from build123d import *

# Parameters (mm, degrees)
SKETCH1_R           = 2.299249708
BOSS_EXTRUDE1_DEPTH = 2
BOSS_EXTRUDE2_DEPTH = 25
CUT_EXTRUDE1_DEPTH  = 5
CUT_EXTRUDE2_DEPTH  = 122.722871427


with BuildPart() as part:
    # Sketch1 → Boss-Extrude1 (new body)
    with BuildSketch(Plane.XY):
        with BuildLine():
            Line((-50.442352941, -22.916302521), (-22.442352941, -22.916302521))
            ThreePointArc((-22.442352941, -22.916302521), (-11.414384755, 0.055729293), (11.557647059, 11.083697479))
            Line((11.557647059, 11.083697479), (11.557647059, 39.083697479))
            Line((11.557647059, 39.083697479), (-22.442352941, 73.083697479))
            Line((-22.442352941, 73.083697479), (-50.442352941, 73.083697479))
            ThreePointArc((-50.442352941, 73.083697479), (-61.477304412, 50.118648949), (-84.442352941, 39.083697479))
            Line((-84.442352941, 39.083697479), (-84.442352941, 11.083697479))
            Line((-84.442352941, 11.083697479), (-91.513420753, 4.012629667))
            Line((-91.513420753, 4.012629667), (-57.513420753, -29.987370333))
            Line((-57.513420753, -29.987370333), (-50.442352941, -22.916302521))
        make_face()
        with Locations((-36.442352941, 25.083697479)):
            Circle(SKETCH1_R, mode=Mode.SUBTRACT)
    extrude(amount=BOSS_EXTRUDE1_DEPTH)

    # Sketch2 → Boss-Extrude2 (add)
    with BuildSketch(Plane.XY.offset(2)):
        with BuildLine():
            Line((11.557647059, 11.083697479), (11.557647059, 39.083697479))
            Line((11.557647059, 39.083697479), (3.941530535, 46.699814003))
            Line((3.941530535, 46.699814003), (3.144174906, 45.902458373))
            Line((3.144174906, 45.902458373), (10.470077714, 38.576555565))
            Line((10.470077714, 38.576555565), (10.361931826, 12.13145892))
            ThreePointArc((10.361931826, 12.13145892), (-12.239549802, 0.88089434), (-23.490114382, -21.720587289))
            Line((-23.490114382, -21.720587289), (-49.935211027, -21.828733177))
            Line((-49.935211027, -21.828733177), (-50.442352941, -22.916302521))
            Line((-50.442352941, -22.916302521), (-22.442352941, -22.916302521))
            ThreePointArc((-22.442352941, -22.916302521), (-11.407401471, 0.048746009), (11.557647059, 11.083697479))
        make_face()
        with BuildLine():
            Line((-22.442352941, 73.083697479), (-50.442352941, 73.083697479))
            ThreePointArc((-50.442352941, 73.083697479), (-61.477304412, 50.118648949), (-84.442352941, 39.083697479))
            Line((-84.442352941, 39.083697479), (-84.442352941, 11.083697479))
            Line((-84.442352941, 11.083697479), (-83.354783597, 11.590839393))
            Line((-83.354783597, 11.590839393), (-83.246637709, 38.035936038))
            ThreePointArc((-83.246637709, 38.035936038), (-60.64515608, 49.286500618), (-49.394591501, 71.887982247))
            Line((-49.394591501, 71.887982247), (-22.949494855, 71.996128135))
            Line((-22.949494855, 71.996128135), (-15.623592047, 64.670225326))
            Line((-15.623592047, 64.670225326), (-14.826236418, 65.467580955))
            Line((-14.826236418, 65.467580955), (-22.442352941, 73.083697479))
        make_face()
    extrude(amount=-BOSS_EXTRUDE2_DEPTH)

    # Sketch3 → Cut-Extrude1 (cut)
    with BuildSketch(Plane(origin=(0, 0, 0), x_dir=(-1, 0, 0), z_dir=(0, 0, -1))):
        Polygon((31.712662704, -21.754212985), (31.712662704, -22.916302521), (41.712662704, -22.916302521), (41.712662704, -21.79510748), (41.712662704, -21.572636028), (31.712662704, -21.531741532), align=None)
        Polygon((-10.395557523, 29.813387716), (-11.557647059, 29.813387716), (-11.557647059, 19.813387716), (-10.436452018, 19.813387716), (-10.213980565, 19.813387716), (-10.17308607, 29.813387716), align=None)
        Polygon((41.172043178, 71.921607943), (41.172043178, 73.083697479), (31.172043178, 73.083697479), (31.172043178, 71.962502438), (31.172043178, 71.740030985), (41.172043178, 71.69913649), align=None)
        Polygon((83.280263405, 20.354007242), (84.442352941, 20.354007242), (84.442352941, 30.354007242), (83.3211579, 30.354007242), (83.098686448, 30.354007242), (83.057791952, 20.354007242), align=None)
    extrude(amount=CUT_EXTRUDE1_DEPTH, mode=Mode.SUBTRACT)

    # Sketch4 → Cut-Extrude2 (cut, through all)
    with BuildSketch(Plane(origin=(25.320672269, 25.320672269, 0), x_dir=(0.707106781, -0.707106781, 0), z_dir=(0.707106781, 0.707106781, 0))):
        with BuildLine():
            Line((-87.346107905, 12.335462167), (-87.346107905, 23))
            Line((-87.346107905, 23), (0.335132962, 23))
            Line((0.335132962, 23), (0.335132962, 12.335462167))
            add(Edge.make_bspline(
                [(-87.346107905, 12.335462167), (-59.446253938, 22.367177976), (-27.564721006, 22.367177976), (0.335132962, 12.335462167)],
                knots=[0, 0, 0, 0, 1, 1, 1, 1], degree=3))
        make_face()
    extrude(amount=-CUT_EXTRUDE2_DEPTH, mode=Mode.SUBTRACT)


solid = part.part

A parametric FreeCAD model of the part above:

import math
import FreeCAD as App
import Part
import Sketcher
Q = App.Units.Quantity


def add_polygon(sketch, points):
    """Adds a closed chain of lines whose ends are joined by coincident constraints."""
    first, n = sketch.GeometryCount, len(points)
    for a, b in zip(points, points[1:] + points[:1]):
        sketch.addGeometry(Part.LineSegment(App.Vector(*a, 0), App.Vector(*b, 0)), False)
    for i in range(n):
        sketch.addConstraint(Sketcher.Constraint("Coincident", first + i, 2, first + (i + 1) % n, 1))

doc = App.newDocument("Part")
body = doc.addObject("PartDesign::Body", "Body")

# Sketch on XY plane
sketch1 = body.newObject("Sketcher::SketchObject", "Sketch")
sketch1.AttachmentSupport = (doc.getObject("XY_Plane"), [""])
sketch1.MapMode = "FlatFace"
sketch1.addGeometry([
    Part.LineSegment(App.Vector(-50.442353, -22.916303, 0), App.Vector(-22.442353, -22.916303, 0)),  # 0
    Part.ArcOfCircle(Part.Circle(App.Vector(15.767751, -27.126407, 0), App.Vector(0, 0, 1), 38.441346), math.radians(96.287659), math.radians(173.712341)),  # 1
    Part.LineSegment(App.Vector(11.557647, 11.083697, 0), App.Vector(11.557647, 39.083697, 0)),  # 2
    Part.LineSegment(App.Vector(11.557647, 39.083697, 0), App.Vector(-22.442353, 73.083697, 0)),  # 3
    Part.LineSegment(App.Vector(-22.442353, 73.083697, 0), App.Vector(-50.442353, 73.083697, 0)),  # 4
    Part.ArcOfCircle(Part.Circle(App.Vector(-88.684275, 77.32562, 0), App.Vector(0, 0, 1), 38.476467), math.radians(-83.670435), math.radians(-6.329565)),  # 5
    Part.LineSegment(App.Vector(-84.442353, 39.083697, 0), App.Vector(-84.442353, 11.083697, 0)),  # 6
    Part.LineSegment(App.Vector(-84.442353, 11.083697, 0), App.Vector(-91.513421, 4.01263, 0)),  # 7
    Part.LineSegment(App.Vector(-91.513421, 4.01263, 0), App.Vector(-57.513421, -29.98737, 0)),  # 8
    Part.LineSegment(App.Vector(-57.513421, -29.98737, 0), App.Vector(-50.442353, -22.916303, 0)),  # 9
    Part.Circle(App.Vector(-36.442353, 25.083697, 0), App.Vector(0, 0, 1), 2.29925),  # 10
], False)
sketch1.addConstraint([
    Sketcher.Constraint("Coincident", 0, 2, 1, 2),
    Sketcher.Constraint("Coincident", 1, 1, 2, 1),
    Sketcher.Constraint("Coincident", 2, 2, 3, 1),
    Sketcher.Constraint("Coincident", 3, 2, 4, 1),
    Sketcher.Constraint("Coincident", 4, 2, 5, 2),
    Sketcher.Constraint("Coincident", 5, 1, 6, 1),
    Sketcher.Constraint("Coincident", 6, 2, 7, 1),
    Sketcher.Constraint("Coincident", 7, 2, 8, 1),
    Sketcher.Constraint("Coincident", 8, 2, 9, 1),
    Sketcher.Constraint("Coincident", 9, 2, 0, 1),
    Sketcher.Constraint("Horizontal", 0),
    Sketcher.Constraint("Vertical", 2),
    Sketcher.Constraint("Horizontal", 4),
    Sketcher.Constraint("Vertical", 6),
    Sketcher.Constraint("Perpendicular", 3, 7),
    Sketcher.Constraint("Perpendicular", 7, 8),
    Sketcher.Constraint("Perpendicular", 8, 9),
    Sketcher.Constraint("Horizontal", 2, 2, 5, 1),
    Sketcher.Constraint("Horizontal", 1, 1, 6, 2),
    Sketcher.Constraint("Vertical", 0, 2, 3, 2),
    Sketcher.Constraint("Vertical", 4, 2, 9, 2),
    Sketcher.Constraint("Equal", 4, 2),
    Sketcher.Constraint("Equal", 3, 8),
    Sketcher.Constraint("Equal", 7, 9),
    Sketcher.Constraint("DistanceX", 0, 1, 0, 2, Q("28 mm")),
    Sketcher.Constraint("Angle", 3, Q("135 deg")),
    Sketcher.Constraint("Distance", 7, Q("10 mm")),
    Sketcher.Constraint("DistanceX", 10, 3, 0, 2, Q("14 mm")),
    Sketcher.Constraint("DistanceY", 0, 2, 10, 3, Q("48 mm")),
    Sketcher.Constraint("DistanceX", 0, 2, 1, 1, Q("34 mm")),
    Sketcher.Constraint("Diameter", 10, Q("4.598499 mm")),
    Sketcher.Constraint("Radius", 1, Q("38.441346 mm")),
    Sketcher.Constraint("Radius", 5, Q("38.476467 mm")),
    Sketcher.Constraint("DistanceX", -1, 1, 1, 3, Q("15.767751 mm")),
    Sketcher.Constraint("DistanceY", -1, 1, 5, 3, Q("77.32562 mm")),
])
pad1 = body.newObject("PartDesign::Pad", "Pad")
pad1.Profile = sketch1
pad1.Length = 2

# Sketch on XY plane
sketch2 = body.newObject("Sketcher::SketchObject", "Sketch001")
sketch2.AttachmentSupport = (doc.getObject("XY_Plane"), [""])
sketch2.MapMode = "FlatFace"
sketch2.AttachmentOffset = App.Placement(App.Vector(0, 0, 2), App.Rotation())
sketch2.addGeometry([
    Part.LineSegment(App.Vector(11.557647, 11.083697, 0), App.Vector(11.557647, 39.083697, 0)),  # 0
    Part.LineSegment(App.Vector(11.557647, 39.083697, 0), App.Vector(3.941531, 46.699814, 0)),  # 1
    Part.LineSegment(App.Vector(3.941531, 46.699814, 0), App.Vector(3.144175, 45.902458, 0)),  # 2
    Part.LineSegment(App.Vector(3.144175, 45.902458, 0), App.Vector(10.470078, 38.576556, 0)),  # 3
    Part.LineSegment(App.Vector(10.470078, 38.576556, 0), App.Vector(10.361932, 12.131459, 0)),  # 4
    Part.ArcOfCircle(Part.Circle(App.Vector(15.837573, -27.196228, 0), App.Vector(0, 0, 1), 39.707047), math.radians(97.926403), math.radians(172.073597)),  # 5
    Part.LineSegment(App.Vector(-23.490114, -21.720587, 0), App.Vector(-49.935211, -21.828733, 0)),  # 6
    Part.LineSegment(App.Vector(-49.935211, -21.828733, 0), App.Vector(-50.442353, -22.916303, 0)),  # 7
    Part.LineSegment(App.Vector(-50.442353, -22.916303, 0), App.Vector(-22.442353, -22.916303, 0)),  # 8
    Part.ArcOfCircle(Part.Circle(App.Vector(15.799569, -27.158225, 0), App.Vector(0, 0, 1), 38.476467), math.radians(96.329565), math.radians(173.670435)),  # 9
    Part.LineSegment(App.Vector(-22.442353, 73.083697, 0), App.Vector(-50.442353, 73.083697, 0)),  # 10
    Part.ArcOfCircle(Part.Circle(App.Vector(-88.684275, 77.32562, 0), App.Vector(0, 0, 1), 38.476467), math.radians(-83.670435), math.radians(-6.329565)),  # 11
    Part.LineSegment(App.Vector(-84.442353, 39.083697, 0), App.Vector(-84.442353, 11.083697, 0)),  # 12
    Part.LineSegment(App.Vector(-84.442353, 11.083697, 0), App.Vector(-83.354784, 11.590839, 0)),  # 13
    Part.LineSegment(App.Vector(-83.354784, 11.590839, 0), App.Vector(-83.246638, 38.035936, 0)),  # 14
    Part.ArcOfCircle(Part.Circle(App.Vector(-88.722279, 77.363623, 0), App.Vector(0, 0, 1), 39.707047), math.radians(-82.073597), math.radians(-7.926403)),  # 15
    Part.LineSegment(App.Vector(-49.394592, 71.887982, 0), App.Vector(-22.949495, 71.996128, 0)),  # 16
    Part.LineSegment(App.Vector(-22.949495, 71.996128, 0), App.Vector(-15.623592, 64.670225, 0)),  # 17
    Part.LineSegment(App.Vector(-15.623592, 64.670225, 0), App.Vector(-14.826236, 65.467581, 0)),  # 18
    Part.LineSegment(App.Vector(-14.826236, 65.467581, 0), App.Vector(-22.442353, 73.083697, 0)),  # 19
], False)
sketch2.addConstraint([
    Sketcher.Constraint("Coincident", 0, 2, 1, 1),
    Sketcher.Constraint("Coincident", 1, 2, 2, 1),
    Sketcher.Constraint("Coincident", 2, 2, 3, 1),
    Sketcher.Constraint("Coincident", 3, 2, 4, 1),
    Sketcher.Constraint("Coincident", 4, 2, 5, 1),
    Sketcher.Constraint("Coincident", 5, 2, 6, 1),
    Sketcher.Constraint("Coincident", 6, 2, 7, 1),
    Sketcher.Constraint("Coincident", 7, 2, 8, 1),
    Sketcher.Constraint("Coincident", 8, 2, 9, 2),
    Sketcher.Constraint("Coincident", 9, 1, 0, 1),
    Sketcher.Constraint("Coincident", 10, 2, 11, 2),
    Sketcher.Constraint("Coincident", 11, 1, 12, 1),
    Sketcher.Constraint("Coincident", 12, 2, 13, 1),
    Sketcher.Constraint("Coincident", 13, 2, 14, 1),
    Sketcher.Constraint("Coincident", 14, 2, 15, 1),
    Sketcher.Constraint("Coincident", 15, 2, 16, 1),
    Sketcher.Constraint("Coincident", 16, 2, 17, 1),
    Sketcher.Constraint("Coincident", 17, 2, 18, 1),
    Sketcher.Constraint("Coincident", 18, 2, 19, 1),
    Sketcher.Constraint("Coincident", 19, 2, 10, 1),
    Sketcher.Constraint("Vertical", 0),
    Sketcher.Constraint("Horizontal", 8),
    Sketcher.Constraint("Horizontal", 10),
    Sketcher.Constraint("Vertical", 12),
    Sketcher.Constraint("Equal", 9, 11),
    Sketcher.Constraint("Equal", 5, 15),
    Sketcher.Constraint("Perpendicular", 1, 2),
    Sketcher.Constraint("Perpendicular", 2, 3),
    Sketcher.Constraint("Parallel", 4, 14),
    Sketcher.Constraint("Parallel", 6, 16),
    Sketcher.Constraint("Parallel", 3, 17),
    Sketcher.Constraint("Perpendicular", 17, 18),
    Sketcher.Constraint("Perpendicular", 18, 19),
    Sketcher.Constraint("Horizontal", 0, 2, 11, 1),
    Sketcher.Constraint("Horizontal", 9, 1, 12, 2),
    Sketcher.Constraint("Vertical", 7, 2, 10, 2),
    Sketcher.Constraint("Vertical", 8, 2, 19, 2),
    Sketcher.Constraint("Equal", 10, 0),
    Sketcher.Constraint("Equal", 4, 6),
    Sketcher.Constraint("Equal", 7, 13),
    Sketcher.Constraint("Equal", 6, 14),
    Sketcher.Constraint("Equal", 14, 16),
    Sketcher.Constraint("Equal", 3, 17),
    Sketcher.Constraint("Equal", 2, 18),
    Sketcher.Constraint("Equal", 1, 19),
    Sketcher.Constraint("DistanceX", 8, 1, 8, 2, Q("28 mm")),
    Sketcher.Constraint("Angle", 1, Q("135 deg")),
    Sketcher.Constraint("Angle", 7, Q("-115 deg")),
    Sketcher.Constraint("Angle", 13, Q("25 deg")),
    Sketcher.Constraint("DistanceX", 11, 1, 10, 2, Q("34 mm")),
    Sketcher.Constraint("DistanceY", 11, 1, 10, 2, Q("34 mm")),
    Sketcher.Constraint("DistanceY", 7, 2, 11, 1, Q("62 mm")),
    Sketcher.Constraint("Distance", 7, Q("1.2 mm")),
    Sketcher.Constraint("Radius", 5, Q("39.707047 mm")),
    Sketcher.Constraint("Radius", 9, Q("38.476467 mm")),
    Sketcher.Constraint("DistanceY", 4, 2, 2, 2, Q("33.770999 mm")),
    Sketcher.Constraint("DistanceX", 1, 2, 4, 2, Q("6.420401 mm")),
    Sketcher.Constraint("DistanceY", 18, 2, 15, 2, Q("6.420401 mm")),
    Sketcher.Constraint("Distance", 2, Q("1.127631 mm")),
    Sketcher.Constraint("Distance", 3, Q("10.360391 mm")),
    Sketcher.Constraint("DistanceY", 5, 3, -1, 1, Q("27.196228 mm")),
    Sketcher.Constraint("DistanceX", -1, 1, 9, 3, Q("15.799569 mm")),
    Sketcher.Constraint("DistanceY", -1, 1, 11, 3, Q("77.32562 mm")),
    Sketcher.Constraint("DistanceX", 15, 3, -1, 1, Q("88.722279 mm")),
])
pad2 = body.newObject("PartDesign::Pad", "Pad001")
pad2.Profile = sketch2
pad2.Length = 25
pad2.Reversed = True

# Sketch on XY plane
sketch3 = body.newObject("Sketcher::SketchObject", "Sketch002")
sketch3.AttachmentSupport = (doc.getObject("XY_Plane"), [""])
sketch3.MapMode = "FlatFace"
add_polygon(sketch3, [(-31.712663, -22.916303), (-41.712663, -22.916303), (-41.712663, -21.572636), (-31.712663, -21.531742)])  # lines 0-3
add_polygon(sketch3, [(11.557647, 29.813388), (11.557647, 19.813388), (10.213981, 19.813388), (10.173086, 29.813388)])  # lines 4-7
add_polygon(sketch3, [(-41.172043, 73.083697), (-31.172043, 73.083697), (-31.172043, 71.740031), (-41.172043, 71.699136)])  # lines 8-11
add_polygon(sketch3, [(-84.442353, 20.354007), (-84.442353, 30.354007), (-83.098686, 30.354007), (-83.057792, 20.354007)])  # lines 12-15
sketch3.addConstraint([
    Sketcher.Constraint("Horizontal", 0),
    Sketcher.Constraint("Vertical", 1),
    Sketcher.Constraint("Vertical", 3),
    Sketcher.Constraint("Vertical", 4),
    Sketcher.Constraint("Horizontal", 5),
    Sketcher.Constraint("Horizontal", 7),
    Sketcher.Constraint("Horizontal", 8),
    Sketcher.Constraint("Vertical", 9),
    Sketcher.Constraint("Vertical", 11),
    Sketcher.Constraint("Vertical", 12),
    Sketcher.Constraint("Horizontal", 13),
    Sketcher.Constraint("Horizontal", 15),
    Sketcher.Constraint("Perpendicular", 2, 6),
    Sketcher.Constraint("Perpendicular", 6, 10),
    Sketcher.Constraint("Perpendicular", 10, 14),
    Sketcher.Constraint("Equal", 0, 8),
    Sketcher.Constraint("Equal", 5, 13),
    Sketcher.Constraint("Equal", 7, 15),
    Sketcher.Constraint("Equal", 13, 1),
    Sketcher.Constraint("Equal", 8, 4),
    Sketcher.Constraint("Equal", 1, 9),
    Sketcher.Constraint("DistanceX", 0, 2, 0, 1, Q("10 mm")),
    Sketcher.Constraint("DistanceX", 7, 1, 7, 2, Q("1.384561 mm")),
    Sketcher.Constraint("DistanceX", 5, 2, 5, 1, Q("1.343666 mm")),
    Sketcher.Constraint("DistanceY", 2, 2, -1, 1, Q("21.531742 mm")),
    Sketcher.Constraint("DistanceX", -1, 1, 5, 2, Q("10.213981 mm")),
    Sketcher.Constraint("DistanceY", -1, 1, 9, 2, Q("71.740031 mm")),
    Sketcher.Constraint("DistanceX", 14, 2, -1, 1, Q("83.057792 mm")),
    Sketcher.Constraint("DistanceX", 2, 2, 4, 2, Q("43.27031 mm")),
    Sketcher.Constraint("DistanceY", 2, 2, 4, 2, Q("41.345129 mm")),
    Sketcher.Constraint("DistanceX", 8, 2, 6, 2, Q("41.345129 mm")),
    Sketcher.Constraint("DistanceY", 12, 2, 10, 2, Q("41.345129 mm")),
])
pocket1 = body.newObject("PartDesign::Pocket", "Pocket")
pocket1.Profile = sketch3
pocket1.Length = 5

# Sketch on an angled plane
sketch4 = body.newObject("Sketcher::SketchObject", "Sketch003")
sketch4.Placement = App.Placement(App.Vector(25.320672, 25.320672, 0), App.Rotation(App.Vector(0.707106781, -0.707106781, 0), App.Vector(0, 0, -0.999999999), App.Vector(0.707106781, 0.707106781, 0), "ZXY"))
sketch4.addGeometry([
    Part.LineSegment(App.Vector(-87.346108, 23, 0), App.Vector(-87.346108, 12.335462, 0)),
    Part.BSplineCurve([App.Vector(-87.346108, 12.335462, 0), App.Vector(-59.446254, 22.367178, 0), App.Vector(-27.564721, 22.367178, 0), App.Vector(0.335133, 12.335462, 0)], [4, 4], [0, 1], False, 3, [1, 1, 1, 1], False),
    Part.LineSegment(App.Vector(0.335133, 12.335462, 0), App.Vector(0.335133, 23, 0)),
    Part.LineSegment(App.Vector(0.335133, 23, 0), App.Vector(-87.346108, 23, 0)),
], False)
sketch4.addConstraint([
    Sketcher.Constraint("Block", 1),
    Sketcher.Constraint("Coincident", 0, 2, 1, 1),
    Sketcher.Constraint("Coincident", 1, 2, 2, 1),
    Sketcher.Constraint("Coincident", 2, 2, 3, 1),
    Sketcher.Constraint("Coincident", 3, 2, 0, 1),
    Sketcher.Constraint("Vertical", 0),
    Sketcher.Constraint("Vertical", 2),
    Sketcher.Constraint("Horizontal", 3),
    Sketcher.Constraint("DistanceY", -1, 1, 2, 2, Q("23 mm")),
])
pocket2 = body.newObject("PartDesign::Pocket", "Pocket001")
pocket2.Profile = sketch4
pocket2.Type = "ThroughAll"

doc.recompute()
